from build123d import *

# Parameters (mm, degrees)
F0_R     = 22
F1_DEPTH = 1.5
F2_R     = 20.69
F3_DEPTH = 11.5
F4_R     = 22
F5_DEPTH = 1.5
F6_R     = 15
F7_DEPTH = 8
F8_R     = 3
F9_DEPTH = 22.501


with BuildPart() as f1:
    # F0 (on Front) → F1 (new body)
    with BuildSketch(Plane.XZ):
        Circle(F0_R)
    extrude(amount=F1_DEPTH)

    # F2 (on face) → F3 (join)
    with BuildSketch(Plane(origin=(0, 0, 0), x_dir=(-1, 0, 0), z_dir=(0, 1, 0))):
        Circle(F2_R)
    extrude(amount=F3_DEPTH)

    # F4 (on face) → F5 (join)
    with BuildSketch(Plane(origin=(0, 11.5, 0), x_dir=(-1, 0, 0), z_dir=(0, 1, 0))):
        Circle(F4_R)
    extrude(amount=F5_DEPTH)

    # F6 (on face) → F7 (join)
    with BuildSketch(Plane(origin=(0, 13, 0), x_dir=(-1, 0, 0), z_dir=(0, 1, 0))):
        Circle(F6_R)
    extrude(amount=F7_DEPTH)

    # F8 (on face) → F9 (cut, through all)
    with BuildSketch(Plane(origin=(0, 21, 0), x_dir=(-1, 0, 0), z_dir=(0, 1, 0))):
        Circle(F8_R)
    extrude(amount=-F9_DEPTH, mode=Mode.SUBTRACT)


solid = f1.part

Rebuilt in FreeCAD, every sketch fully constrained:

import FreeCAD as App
import Part
import Sketcher
from FreeCAD import Vector
Q = App.Units.Quantity

doc = App.newDocument("Part")
body = doc.addObject("PartDesign::Body", "Body")

# Sketch on XZ plane
sketch1 = body.newObject("Sketcher::SketchObject", "Sketch")
sketch1.AttachmentSupport = (doc.getObject("XZ_Plane"), [""])
sketch1.MapMode = "FlatFace"
sketch1.addGeometry(Part.Circle(Vector(0, 0, 0), Vector(0, 0, 1), 22), False)
sketch1.addConstraint(Sketcher.Constraint("Coincident", 0, 3, -1, 1))
sketch1.addConstraint(Sketcher.Constraint("Diameter", 0, Q("44 mm")))
pad1 = body.newObject("PartDesign::Pad", "Pad")
pad1.Profile = sketch1
pad1.Length = 1.5

# Sketch on XZ plane
sketch2 = body.newObject("Sketcher::SketchObject", "Sketch001")
sketch2.AttachmentSupport = (doc.getObject("XZ_Plane"), [""])
sketch2.MapMode = "FlatFace"
sketch2.addGeometry(Part.Circle(Vector(0, 0, 0), Vector(0, 0, 1), 20.69), False)
sketch2.addConstraint(Sketcher.Constraint("Coincident", 0, 3, -1, 1))
sketch2.addConstraint(Sketcher.Constraint("Diameter", 0, Q("41.38 mm")))
pad2 = body.newObject("PartDesign::Pad", "Pad001")
pad2.Profile = sketch2
pad2.Length = 11.5
pad2.Reversed = True

# Sketch on XZ plane
sketch3 = body.newObject("Sketcher::SketchObject", "Sketch002")
sketch3.AttachmentSupport = (doc.getObject("XZ_Plane"), [""])
sketch3.MapMode = "FlatFace"
sketch3.AttachmentOffset = App.Placement(Vector(0, 0, -11.5), App.Rotation())
sketch3.addGeometry(Part.Circle(Vector(0, 0, 0), Vector(0, 0, 1), 22), False)
sketch3.addConstraint(Sketcher.Constraint("Coincident", 0, 3, -1, 1))
sketch3.addConstraint(Sketcher.Constraint("Diameter", 0, Q("44 mm")))
pad3 = body.newObject("PartDesign::Pad", "Pad002")
pad3.Profile = sketch3
pad3.Length = 1.5
pad3.Reversed = True

# Sketch on XZ plane
sketch4 = body.newObject("Sketcher::SketchObject", "Sketch003")
sketch4.AttachmentSupport = (doc.getObject("XZ_Plane"), [""])
sketch4.MapMode = "FlatFace"
sketch4.AttachmentOffset = App.Placement(Vector(0, 0, -13), App.Rotation())
sketch4.addGeometry(Part.Circle(Vector(0, 0, 0), Vector(0, 0, 1), 15), False)
sketch4.addConstraint(Sketcher.Constraint("Coincident", 0, 3, -1, 1))
sketch4.addConstraint(Sketcher.Constraint("Diameter", 0, Q("30 mm")))
pad4 = body.newObject("PartDesign::Pad", "Pad003")
pad4.Profile = sketch4
pad4.Length = 8
pad4.Reversed = True

# Sketch on XZ plane
sketch5 = body.newObject("Sketcher::SketchObject", "Sketch004")
sketch5.AttachmentSupport = (doc.getObject("XZ_Plane"), [""])
sketch5.MapMode = "FlatFace"
sketch5.AttachmentOffset = App.Placement(Vector(0, 0, -21), App.Rotation())
sketch5.addGeometry(Part.Circle(Vector(0, 0, 0), Vector(0, 0, 1), 3), False)
sketch5.addConstraint(Sketcher.Constraint("Coincident", 0, 3, -1, 1))
sketch5.addConstraint(Sketcher.Constraint("Diameter", 0, Q("6 mm")))
pocket1 = body.newObject("PartDesign::Pocket", "Pocket")
pocket1.Profile = sketch5
pocket1.Type = "ThroughAll"
pocket1.Reversed = True

doc.recompute()
